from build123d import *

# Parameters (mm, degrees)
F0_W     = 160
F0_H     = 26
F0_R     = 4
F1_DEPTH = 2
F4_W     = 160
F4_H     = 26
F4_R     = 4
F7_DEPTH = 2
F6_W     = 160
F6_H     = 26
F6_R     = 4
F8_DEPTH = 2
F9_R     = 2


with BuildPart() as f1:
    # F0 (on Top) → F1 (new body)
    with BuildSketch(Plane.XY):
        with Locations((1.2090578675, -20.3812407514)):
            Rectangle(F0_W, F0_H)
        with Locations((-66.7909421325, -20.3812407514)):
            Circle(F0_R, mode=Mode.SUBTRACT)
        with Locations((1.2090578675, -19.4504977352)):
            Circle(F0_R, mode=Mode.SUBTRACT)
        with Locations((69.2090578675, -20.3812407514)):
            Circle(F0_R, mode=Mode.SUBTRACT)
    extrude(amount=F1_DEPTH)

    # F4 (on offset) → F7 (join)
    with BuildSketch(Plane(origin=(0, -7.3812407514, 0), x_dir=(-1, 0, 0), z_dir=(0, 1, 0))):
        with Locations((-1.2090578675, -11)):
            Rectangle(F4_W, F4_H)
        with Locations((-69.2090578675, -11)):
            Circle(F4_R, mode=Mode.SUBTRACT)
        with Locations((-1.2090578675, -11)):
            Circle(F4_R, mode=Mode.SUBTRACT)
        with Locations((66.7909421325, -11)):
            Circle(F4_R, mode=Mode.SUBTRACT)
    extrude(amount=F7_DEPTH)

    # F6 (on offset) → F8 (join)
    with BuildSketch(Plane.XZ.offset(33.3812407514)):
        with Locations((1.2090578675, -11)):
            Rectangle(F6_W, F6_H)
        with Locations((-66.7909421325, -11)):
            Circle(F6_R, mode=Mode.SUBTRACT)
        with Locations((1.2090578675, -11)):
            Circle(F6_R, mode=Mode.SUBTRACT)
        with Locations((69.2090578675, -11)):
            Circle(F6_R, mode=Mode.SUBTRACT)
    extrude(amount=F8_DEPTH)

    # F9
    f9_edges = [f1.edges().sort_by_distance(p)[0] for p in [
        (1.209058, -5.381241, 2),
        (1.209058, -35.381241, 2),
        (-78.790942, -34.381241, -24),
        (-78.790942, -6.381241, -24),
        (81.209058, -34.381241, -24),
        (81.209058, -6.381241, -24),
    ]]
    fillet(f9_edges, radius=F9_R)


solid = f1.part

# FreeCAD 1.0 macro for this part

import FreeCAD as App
import Part
import Sketcher
from FreeCAD import Vector


def edges_at(feature, points):
    """Names of the edges that pass closest to the given points."""
    edges = feature.Shape.Edges
    near = lambda p: min(range(len(edges)), key=lambda i: edges[i].distToShape(Part.Vertex(*p))[0])
    return sorted({f"Edge{near(p) + 1}" for p in points})

doc = App.newDocument("Part")
body = doc.addObject("PartDesign::Body", "Body")

# Sketch on XY plane
sketch1 = body.newObject("Sketcher::SketchObject", "Sketch")
sketch1.AttachmentSupport = (doc.getObject("XY_Plane"), [""])
sketch1.MapMode = "FlatFace"
sketch1.addGeometry(Part.LineSegment(Vector(-78.8, -7.4, 0), Vector(-78.8, -33.4, 0)), False)
sketch1.addGeometry(Part.LineSegment(Vector(-78.8, -33.4, 0), Vector(81.2, -33.4, 0)), False)
sketch1.addGeometry(Part.LineSegment(Vector(81.2, -33.4, 0), Vector(81.2, -7.4, 0)), False)
sketch1.addGeometry(Part.LineSegment(Vector(81.2, -7.4, 0), Vector(-78.8, -7.4, 0)), False)
sketch1.addGeometry(Part.Circle(Vector(-66.8, -20.4, 0), Vector(0, 0, 1), 4), False)
sketch1.addGeometry(Part.Circle(Vector(69.2, -20.4, 0), Vector(0, 0, 1), 4), False)
sketch1.addGeometry(Part.Circle(Vector(1.2, -19.5, 0), Vector(0, 0, 1), 4), False)
sketch1.addConstraint(Sketcher.Constraint("Coincident", 0, 2, 1, 1))
sketch1.addConstraint(Sketcher.Constraint("Coincident", 1, 2, 2, 1))
sketch1.addConstraint(Sketcher.Constraint("Coincident", 2, 2, 3, 1))
sketch1.addConstraint(Sketcher.Constraint("Coincident", 3, 2, 0, 1))
sketch1.addConstraint(Sketcher.Constraint("Vertical", 0))
sketch1.addConstraint(Sketcher.Constraint("Horizontal", 1))
sketch1.addConstraint(Sketcher.Constraint("Vertical", 2))
sketch1.addConstraint(Sketcher.Constraint("Horizontal", 3))
sketch1.addConstraint(Sketcher.Constraint("Equal", 4, 5))
sketch1.addConstraint(Sketcher.Constraint("Equal", 5, 6))
sketch1.addConstraint(Sketcher.Constraint("Horizontal", 4, 3, 5, 3))
sketch1.addConstraint(Sketcher.Constraint("Diameter", 4, 8.0))
sketch1.addConstraint(Sketcher.Constraint("DistanceX", 1, 1, 1, 2, 160.0))
sketch1.addConstraint(Sketcher.Constraint("DistanceY", 0, 2, 0, 1, 26.0))
sketch1.addConstraint(Sketcher.Constraint("DistanceX", 4, 3, 5, 3, 136.0))
sketch1.addConstraint(Sketcher.Constraint("DistanceX", 6, 3, 5, 3, 68.0))
sketch1.addConstraint(Sketcher.Constraint("DistanceX", 0, 2, 4, 3, 12.0))
sketch1.addConstraint(Sketcher.Constraint("DistanceY", 0, 2, 4, 3, 13.0))
sketch1.addConstraint(Sketcher.Constraint("DistanceY", 4, 3, -1, 1, 20.381241))
sketch1.addConstraint(Sketcher.Constraint("DistanceX", 4, 3, -1, 1, 66.790942))
sketch1.addConstraint(Sketcher.Constraint("DistanceY", 6, 3, -1, 1, 19.450498))
pad1 = body.newObject("PartDesign::Pad", "Pad")
pad1.Profile = sketch1
pad1.Length = 2

# Sketch on XZ plane
sketch2 = body.newObject("Sketcher::SketchObject", "Sketch001")
sketch2.AttachmentSupport = (doc.getObject("XZ_Plane"), [""])
sketch2.MapMode = "FlatFace"
sketch2.AttachmentOffset = App.Placement(Vector(0, 0, 7.381241), App.Rotation())
sketch2.addGeometry(Part.LineSegment(Vector(81.2, 2, 0), Vector(81.2, -24, 0)), False)
sketch2.addGeometry(Part.LineSegment(Vector(81.2, -24, 0), Vector(-78.8, -24, 0)), False)
sketch2.addGeometry(Part.LineSegment(Vector(-78.8, -24, 0), Vector(-78.8, 2, 0)), False)
sketch2.addGeometry(Part.LineSegment(Vector(-78.8, 2, 0), Vector(81.2, 2, 0)), False)
sketch2.addGeometry(Part.Circle(Vector(69.2, -11, 0), Vector(0, 0, 1), 4), False)
sketch2.addGeometry(Part.Circle(Vector(1.2, -11, 0), Vector(0, 0, 1), 4), False)
sketch2.addGeometry(Part.Circle(Vector(-66.8, -11, 0), Vector(0, 0, 1), 4), False)
sketch2.addConstraint(Sketcher.Constraint("Coincident", 0, 2, 1, 1))
sketch2.addConstraint(Sketcher.Constraint("Coincident", 1, 2, 2, 1))
sketch2.addConstraint(Sketcher.Constraint("Coincident", 2, 2, 3, 1))
sketch2.addConstraint(Sketcher.Constraint("Coincident", 3, 2, 0, 1))
sketch2.addConstraint(Sketcher.Constraint("Vertical", 0))
sketch2.addConstraint(Sketcher.Constraint("Horizontal", 1))
sketch2.addConstraint(Sketcher.Constraint("Vertical", 2))
sketch2.addConstraint(Sketcher.Constraint("Horizontal", 3))
sketch2.addConstraint(Sketcher.Constraint("Equal", 4, 5))
sketch2.addConstraint(Sketcher.Constraint("Equal", 5, 6))
sketch2.addConstraint(Sketcher.Constraint("Horizontal", 4, 3, 5, 3))
sketch2.addConstraint(Sketcher.Constraint("Horizontal", 5, 3, 6, 3))
sketch2.addConstraint(Sketcher.Constraint("Diameter", 4, 8.0))
sketch2.addConstraint(Sketcher.Constraint("DistanceX", 1, 2, 1, 1, 160.0))
sketch2.addConstraint(Sketcher.Constraint("DistanceY", 0, 2, 0, 1, 26.0))
sketch2.addConstraint(Sketcher.Constraint("DistanceY", 4, 3, -1, 1, 11.0))
sketch2.addConstraint(Sketcher.Constraint("DistanceY", 0, 2, -1, 1, 24.0))
sketch2.addConstraint(Sketcher.Constraint("DistanceX", 5, 3, 4, 3, 68.0))
sketch2.addConstraint(Sketcher.Constraint("DistanceX", 6, 3, 5, 3, 68.0))
sketch2.addConstraint(Sketcher.Constraint("DistanceX", 4, 3, 0, 2, 12.0))
sketch2.addConstraint(Sketcher.Constraint("DistanceX", -1, 1, 4, 3, 69.209058))
pad2 = body.newObject("PartDesign::Pad", "Pad001")
pad2.Profile = sketch2
pad2.Length = 2
pad2.Reversed = True

# Sketch on XZ plane
sketch3 = body.newObject("Sketcher::SketchObject", "Sketch002")
sketch3.AttachmentSupport = (doc.getObject("XZ_Plane"), [""])
sketch3.MapMode = "FlatFace"
sketch3.AttachmentOffset = App.Placement(Vector(0, 0, 33.381241), App.Rotation())
sketch3.addGeometry(Part.LineSegment(Vector(-78.8, 2, 0), Vector(-78.8, -24, 0)), False)
sketch3.addGeometry(Part.LineSegment(Vector(-78.8, -24, 0), Vector(81.2, -24, 0)), False)
sketch3.addGeometry(Part.LineSegment(Vector(81.2, -24, 0), Vector(81.2, 2, 0)), False)
sketch3.addGeometry(Part.LineSegment(Vector(81.2, 2, 0), Vector(-78.8, 2, 0)), False)
sketch3.addGeometry(Part.Circle(Vector(-66.8, -11, 0), Vector(0, 0, 1), 4), False)
sketch3.addGeometry(Part.Circle(Vector(1.2, -11, 0), Vector(0, 0, 1), 4), False)
sketch3.addGeometry(Part.Circle(Vector(69.2, -11, 0), Vector(0, 0, 1), 4), False)
sketch3.addConstraint(Sketcher.Constraint("Coincident", 0, 2, 1, 1))
sketch3.addConstraint(Sketcher.Constraint("Coincident", 1, 2, 2, 1))
sketch3.addConstraint(Sketcher.Constraint("Coincident", 2, 2, 3, 1))
sketch3.addConstraint(Sketcher.Constraint("Coincident", 3, 2, 0, 1))
sketch3.addConstraint(Sketcher.Constraint("Vertical", 0))
sketch3.addConstraint(Sketcher.Constraint("Horizontal", 1))
sketch3.addConstraint(Sketcher.Constraint("Vertical", 2))
sketch3.addConstraint(Sketcher.Constraint("Horizontal", 3))
sketch3.addConstraint(Sketcher.Constraint("Equal", 4, 5))
sketch3.addConstraint(Sketcher.Constraint("Equal", 5, 6))
sketch3.addConstraint(Sketcher.Constraint("Horizontal", 4, 3, 5, 3))
sketch3.addConstraint(Sketcher.Constraint("Horizontal", 5, 3, 6, 3))
sketch3.addConstraint(Sketcher.Constraint("Diameter", 4, 8.0))
sketch3.addConstraint(Sketcher.Constraint("DistanceX", 1, 1, 1, 2, 160.0))
sketch3.addConstraint(Sketcher.Constraint("DistanceY", 0, 2, 0, 1, 26.0))
sketch3.addConstraint(Sketcher.Constraint("DistanceY", 4, 3, -1, 1, 11.0))
sketch3.addConstraint(Sketcher.Constraint("DistanceY", 0, 2, -1, 1, 24.0))
sketch3.addConstraint(Sketcher.Constraint("DistanceX", 4, 3, 5, 3, 68.0))
sketch3.addConstraint(Sketcher.Constraint("DistanceX", 5, 3, 6, 3, 68.0))
sketch3.addConstraint(Sketcher.Constraint("DistanceX", 0, 2, 4, 3, 12.0))
sketch3.addConstraint(Sketcher.Constraint("DistanceX", 4, 3, -1, 1, 66.790942))
pad3 = body.newObject("PartDesign::Pad", "Pad002")
pad3.Profile = sketch3
pad3.Length = 2
doc.recompute()

fillet = body.newObject("PartDesign::Fillet", "Fillet")
fillet.Base = (pad3, edges_at(pad3, [
    (1.209, -5.381, 2),
    (1.209, -35.381, 2),
    (-78.791, -34.381, -24),
    (-78.791, -6.381, -24),
    (81.209, -34.381, -24),
    (81.209, -6.381, -24),
]))
fillet.Radius = 2

doc.recompute()
